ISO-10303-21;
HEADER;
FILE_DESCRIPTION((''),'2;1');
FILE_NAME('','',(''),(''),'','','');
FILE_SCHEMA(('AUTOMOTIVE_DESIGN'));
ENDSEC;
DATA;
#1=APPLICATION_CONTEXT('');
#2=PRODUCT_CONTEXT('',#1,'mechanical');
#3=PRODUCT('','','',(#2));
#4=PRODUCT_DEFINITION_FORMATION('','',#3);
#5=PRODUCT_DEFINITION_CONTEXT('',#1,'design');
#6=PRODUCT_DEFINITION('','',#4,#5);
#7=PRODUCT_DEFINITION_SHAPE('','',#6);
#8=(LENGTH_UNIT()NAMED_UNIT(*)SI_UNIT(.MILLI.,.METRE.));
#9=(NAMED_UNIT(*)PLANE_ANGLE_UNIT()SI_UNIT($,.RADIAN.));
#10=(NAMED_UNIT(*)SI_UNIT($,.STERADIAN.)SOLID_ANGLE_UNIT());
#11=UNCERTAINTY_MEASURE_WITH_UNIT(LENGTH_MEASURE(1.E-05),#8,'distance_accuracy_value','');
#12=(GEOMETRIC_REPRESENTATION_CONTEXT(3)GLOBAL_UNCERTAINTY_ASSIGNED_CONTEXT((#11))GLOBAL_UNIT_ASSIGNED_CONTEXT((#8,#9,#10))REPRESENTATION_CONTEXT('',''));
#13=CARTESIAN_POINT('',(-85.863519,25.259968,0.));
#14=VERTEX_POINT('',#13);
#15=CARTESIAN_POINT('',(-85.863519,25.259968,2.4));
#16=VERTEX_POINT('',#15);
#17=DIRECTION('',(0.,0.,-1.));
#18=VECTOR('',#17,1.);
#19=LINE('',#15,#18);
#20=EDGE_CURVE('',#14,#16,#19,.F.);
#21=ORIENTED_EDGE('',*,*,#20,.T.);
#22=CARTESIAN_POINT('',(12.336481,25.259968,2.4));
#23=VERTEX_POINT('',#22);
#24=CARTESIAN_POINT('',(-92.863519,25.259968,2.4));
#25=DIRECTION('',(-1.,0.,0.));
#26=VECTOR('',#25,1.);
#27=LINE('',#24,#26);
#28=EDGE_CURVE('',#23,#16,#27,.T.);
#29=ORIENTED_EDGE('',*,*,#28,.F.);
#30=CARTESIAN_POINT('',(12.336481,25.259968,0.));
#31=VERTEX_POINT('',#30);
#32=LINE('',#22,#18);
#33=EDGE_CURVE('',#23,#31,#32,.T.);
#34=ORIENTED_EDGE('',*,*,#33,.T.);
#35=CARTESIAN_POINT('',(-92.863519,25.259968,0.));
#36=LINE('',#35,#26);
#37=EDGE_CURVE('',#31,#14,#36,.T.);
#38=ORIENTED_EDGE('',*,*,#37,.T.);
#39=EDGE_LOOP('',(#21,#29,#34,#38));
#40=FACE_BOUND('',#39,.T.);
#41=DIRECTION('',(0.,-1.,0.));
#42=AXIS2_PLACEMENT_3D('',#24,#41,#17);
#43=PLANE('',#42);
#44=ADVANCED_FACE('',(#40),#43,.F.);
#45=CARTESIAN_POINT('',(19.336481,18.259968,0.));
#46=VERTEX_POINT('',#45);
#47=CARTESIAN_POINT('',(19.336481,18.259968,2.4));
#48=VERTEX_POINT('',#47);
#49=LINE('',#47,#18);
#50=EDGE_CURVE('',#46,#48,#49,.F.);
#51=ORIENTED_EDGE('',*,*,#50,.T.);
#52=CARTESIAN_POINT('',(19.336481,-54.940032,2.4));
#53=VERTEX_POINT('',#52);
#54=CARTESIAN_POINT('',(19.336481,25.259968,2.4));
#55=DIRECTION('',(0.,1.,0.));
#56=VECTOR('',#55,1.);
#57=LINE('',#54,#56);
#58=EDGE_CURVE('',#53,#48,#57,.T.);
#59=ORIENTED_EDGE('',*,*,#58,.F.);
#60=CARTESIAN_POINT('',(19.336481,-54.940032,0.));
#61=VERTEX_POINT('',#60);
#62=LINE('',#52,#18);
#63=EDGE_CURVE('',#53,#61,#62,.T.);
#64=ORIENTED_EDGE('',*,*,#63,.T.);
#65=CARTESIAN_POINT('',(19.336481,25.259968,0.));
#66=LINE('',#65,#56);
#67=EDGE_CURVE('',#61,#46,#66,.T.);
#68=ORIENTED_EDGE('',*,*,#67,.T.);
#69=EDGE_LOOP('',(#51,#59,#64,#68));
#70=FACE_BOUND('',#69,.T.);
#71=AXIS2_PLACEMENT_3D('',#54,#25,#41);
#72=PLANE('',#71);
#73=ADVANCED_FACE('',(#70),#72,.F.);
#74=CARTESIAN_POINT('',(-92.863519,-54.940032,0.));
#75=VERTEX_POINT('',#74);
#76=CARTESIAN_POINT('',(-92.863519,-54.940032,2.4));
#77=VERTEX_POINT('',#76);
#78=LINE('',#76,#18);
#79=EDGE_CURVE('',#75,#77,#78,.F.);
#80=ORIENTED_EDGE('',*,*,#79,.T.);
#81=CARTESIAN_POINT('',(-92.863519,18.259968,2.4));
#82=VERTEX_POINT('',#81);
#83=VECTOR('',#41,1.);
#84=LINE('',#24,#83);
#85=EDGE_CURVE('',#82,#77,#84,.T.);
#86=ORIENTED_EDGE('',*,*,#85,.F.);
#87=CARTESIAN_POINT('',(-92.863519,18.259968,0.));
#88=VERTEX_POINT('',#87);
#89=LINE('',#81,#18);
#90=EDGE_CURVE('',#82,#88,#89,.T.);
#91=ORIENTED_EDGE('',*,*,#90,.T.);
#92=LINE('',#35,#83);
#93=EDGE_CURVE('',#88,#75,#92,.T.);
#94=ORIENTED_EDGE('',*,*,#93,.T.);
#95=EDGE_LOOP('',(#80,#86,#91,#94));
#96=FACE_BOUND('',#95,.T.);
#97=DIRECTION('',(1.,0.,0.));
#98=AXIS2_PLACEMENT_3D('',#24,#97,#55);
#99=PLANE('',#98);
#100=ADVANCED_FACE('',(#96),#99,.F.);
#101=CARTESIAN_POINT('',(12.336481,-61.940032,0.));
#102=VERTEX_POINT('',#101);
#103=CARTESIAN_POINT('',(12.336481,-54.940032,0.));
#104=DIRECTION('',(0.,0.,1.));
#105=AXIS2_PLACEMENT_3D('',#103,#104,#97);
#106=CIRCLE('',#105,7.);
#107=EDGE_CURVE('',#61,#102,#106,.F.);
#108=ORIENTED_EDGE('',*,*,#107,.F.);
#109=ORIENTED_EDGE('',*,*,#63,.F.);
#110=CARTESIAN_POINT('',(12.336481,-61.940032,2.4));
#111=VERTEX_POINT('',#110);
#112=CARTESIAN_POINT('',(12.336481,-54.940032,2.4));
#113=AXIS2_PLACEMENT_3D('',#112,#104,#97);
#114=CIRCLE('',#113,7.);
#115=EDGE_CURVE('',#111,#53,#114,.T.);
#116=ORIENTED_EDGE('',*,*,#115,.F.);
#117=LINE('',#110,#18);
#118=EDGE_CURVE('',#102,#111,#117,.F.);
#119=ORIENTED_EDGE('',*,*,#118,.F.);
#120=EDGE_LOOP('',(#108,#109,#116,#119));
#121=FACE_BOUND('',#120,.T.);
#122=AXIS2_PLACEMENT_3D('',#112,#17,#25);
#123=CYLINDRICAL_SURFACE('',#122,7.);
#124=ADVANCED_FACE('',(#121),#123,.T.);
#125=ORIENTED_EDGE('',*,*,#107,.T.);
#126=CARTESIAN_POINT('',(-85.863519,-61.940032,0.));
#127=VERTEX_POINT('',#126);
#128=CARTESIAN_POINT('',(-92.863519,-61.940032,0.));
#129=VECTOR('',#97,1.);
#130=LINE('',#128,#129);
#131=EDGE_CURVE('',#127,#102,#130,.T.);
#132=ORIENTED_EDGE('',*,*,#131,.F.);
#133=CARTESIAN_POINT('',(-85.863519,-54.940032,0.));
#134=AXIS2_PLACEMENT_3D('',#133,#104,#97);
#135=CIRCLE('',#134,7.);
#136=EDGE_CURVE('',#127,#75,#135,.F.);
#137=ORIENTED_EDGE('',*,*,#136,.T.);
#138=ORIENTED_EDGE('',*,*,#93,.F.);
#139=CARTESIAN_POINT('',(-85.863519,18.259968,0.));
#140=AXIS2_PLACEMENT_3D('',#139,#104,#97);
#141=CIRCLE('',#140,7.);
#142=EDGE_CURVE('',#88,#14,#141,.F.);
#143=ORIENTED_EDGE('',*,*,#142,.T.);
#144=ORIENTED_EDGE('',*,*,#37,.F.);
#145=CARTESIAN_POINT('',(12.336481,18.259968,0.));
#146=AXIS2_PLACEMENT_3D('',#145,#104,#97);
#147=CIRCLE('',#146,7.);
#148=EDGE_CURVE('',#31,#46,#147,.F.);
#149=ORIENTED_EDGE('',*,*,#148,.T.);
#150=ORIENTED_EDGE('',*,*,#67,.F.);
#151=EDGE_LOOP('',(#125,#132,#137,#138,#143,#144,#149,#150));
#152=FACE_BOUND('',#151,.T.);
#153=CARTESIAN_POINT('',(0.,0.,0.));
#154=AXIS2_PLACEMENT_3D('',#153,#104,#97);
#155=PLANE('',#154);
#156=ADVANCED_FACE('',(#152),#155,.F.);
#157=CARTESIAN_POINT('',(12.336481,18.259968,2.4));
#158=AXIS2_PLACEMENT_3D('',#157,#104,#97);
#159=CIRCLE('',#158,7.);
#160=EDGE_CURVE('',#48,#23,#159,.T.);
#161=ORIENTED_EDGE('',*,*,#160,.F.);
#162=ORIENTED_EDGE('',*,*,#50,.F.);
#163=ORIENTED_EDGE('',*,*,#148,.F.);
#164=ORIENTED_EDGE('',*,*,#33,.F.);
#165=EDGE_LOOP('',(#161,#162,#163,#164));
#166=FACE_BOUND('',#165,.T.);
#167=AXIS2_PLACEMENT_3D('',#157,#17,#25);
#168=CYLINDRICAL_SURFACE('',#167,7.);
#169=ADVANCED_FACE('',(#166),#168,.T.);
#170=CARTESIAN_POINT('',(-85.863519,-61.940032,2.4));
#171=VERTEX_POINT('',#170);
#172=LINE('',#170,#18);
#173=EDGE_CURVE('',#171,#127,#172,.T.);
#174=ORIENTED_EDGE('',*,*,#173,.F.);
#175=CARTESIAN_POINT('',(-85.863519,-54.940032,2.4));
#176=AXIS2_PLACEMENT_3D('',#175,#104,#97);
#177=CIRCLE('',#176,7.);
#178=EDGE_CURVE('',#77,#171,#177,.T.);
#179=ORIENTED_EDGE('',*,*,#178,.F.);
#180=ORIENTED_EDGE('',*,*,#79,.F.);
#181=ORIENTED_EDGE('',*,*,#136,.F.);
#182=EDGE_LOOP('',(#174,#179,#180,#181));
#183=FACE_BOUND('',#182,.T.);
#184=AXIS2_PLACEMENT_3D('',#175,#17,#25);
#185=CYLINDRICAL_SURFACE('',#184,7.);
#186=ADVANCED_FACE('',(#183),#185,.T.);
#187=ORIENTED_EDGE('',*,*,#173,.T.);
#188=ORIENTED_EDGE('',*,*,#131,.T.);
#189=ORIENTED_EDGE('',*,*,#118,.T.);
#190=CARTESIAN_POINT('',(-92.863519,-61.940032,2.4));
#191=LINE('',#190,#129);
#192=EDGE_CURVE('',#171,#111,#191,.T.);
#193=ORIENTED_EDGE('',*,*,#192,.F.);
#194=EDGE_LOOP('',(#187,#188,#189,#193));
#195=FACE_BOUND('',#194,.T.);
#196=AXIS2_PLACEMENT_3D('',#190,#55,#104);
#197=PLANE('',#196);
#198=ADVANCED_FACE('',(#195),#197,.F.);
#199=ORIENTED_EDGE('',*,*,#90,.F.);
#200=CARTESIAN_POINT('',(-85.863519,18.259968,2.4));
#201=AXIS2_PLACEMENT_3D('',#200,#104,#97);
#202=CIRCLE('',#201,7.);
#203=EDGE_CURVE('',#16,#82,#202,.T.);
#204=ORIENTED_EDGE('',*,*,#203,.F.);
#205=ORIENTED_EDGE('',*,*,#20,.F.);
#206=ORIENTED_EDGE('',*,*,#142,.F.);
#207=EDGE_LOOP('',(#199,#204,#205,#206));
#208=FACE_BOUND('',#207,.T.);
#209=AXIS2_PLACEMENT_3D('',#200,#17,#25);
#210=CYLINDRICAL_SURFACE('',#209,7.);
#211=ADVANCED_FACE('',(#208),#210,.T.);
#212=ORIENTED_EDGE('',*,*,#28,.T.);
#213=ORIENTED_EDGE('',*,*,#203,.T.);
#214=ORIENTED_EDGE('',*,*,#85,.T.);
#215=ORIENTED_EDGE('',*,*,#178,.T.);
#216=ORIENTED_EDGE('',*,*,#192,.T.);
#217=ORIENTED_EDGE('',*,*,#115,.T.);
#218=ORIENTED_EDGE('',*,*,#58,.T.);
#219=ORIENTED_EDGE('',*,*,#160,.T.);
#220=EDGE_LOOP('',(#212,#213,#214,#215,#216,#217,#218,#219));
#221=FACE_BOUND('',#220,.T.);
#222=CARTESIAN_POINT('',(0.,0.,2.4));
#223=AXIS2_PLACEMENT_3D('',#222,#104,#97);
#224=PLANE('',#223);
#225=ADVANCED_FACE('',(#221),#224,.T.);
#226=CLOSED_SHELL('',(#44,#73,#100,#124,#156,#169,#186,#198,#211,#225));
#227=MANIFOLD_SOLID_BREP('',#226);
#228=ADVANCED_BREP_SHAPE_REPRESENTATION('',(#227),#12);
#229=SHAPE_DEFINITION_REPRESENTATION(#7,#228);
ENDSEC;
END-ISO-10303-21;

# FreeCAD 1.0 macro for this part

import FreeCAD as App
import Part
import Sketcher


def edges_at(feature, points):
    """Names of the edges that pass closest to the given points."""
    edges = feature.Shape.Edges
    near = lambda p: min(range(len(edges)), key=lambda i: edges[i].distToShape(Part.Vertex(*p))[0])
    return sorted({f"Edge{near(p) + 1}" for p in points})


def add_polygon(sketch, points):
    """Adds a closed chain of lines whose ends are joined by coincident constraints."""
    first, n = sketch.GeometryCount, len(points)
    for a, b in zip(points, points[1:] + points[:1]):
        sketch.addGeometry(Part.LineSegment(App.Vector(*a, 0), App.Vector(*b, 0)), False)
    for i in range(n):
        sketch.addConstraint(Sketcher.Constraint("Coincident", first + i, 2, first + (i + 1) % n, 1))

doc = App.newDocument("Part")
body = doc.addObject("PartDesign::Body", "Body")

# Sketch on XY plane
sketch1 = body.newObject("Sketcher::SketchObject", "Sketch")
sketch1.AttachmentSupport = (doc.getObject("XY_Plane"), [""])
sketch1.MapMode = "FlatFace"
add_polygon(sketch1, [(-93, 25), (-93, -62), (19, -62), (19, 25)])  # lines 0-3
sketch1.addConstraint(Sketcher.Constraint("Vertical", 0))
sketch1.addConstraint(Sketcher.Constraint("Horizontal", 1))
sketch1.addConstraint(Sketcher.Constraint("Vertical", 2))
sketch1.addConstraint(Sketcher.Constraint("Horizontal", 3))
sketch1.addConstraint(Sketcher.Constraint("DistanceX", 1, 1, 1, 2, 112.2))
sketch1.addConstraint(Sketcher.Constraint("DistanceY", 0, 2, 0, 1, 87.2))
sketch1.addConstraint(Sketcher.Constraint("DistanceX", 0, 2, -1, 1, 92.863519))
sketch1.addConstraint(Sketcher.Constraint("DistanceY", 0, 2, -1, 1, 61.940032))
pad1 = body.newObject("PartDesign::Pad", "Pad")
pad1.Profile = sketch1
pad1.Length = 2.4
doc.recompute()

fillet = body.newObject("PartDesign::Fillet", "Fillet")
fillet.Base = (pad1, edges_at(pad1, [
    (-92.864, 25.26, 1.2),
    (19.336, 25.26, 1.2),
    (19.336, -61.94, 1.2),
    (-92.864, -61.94, 1.2),
]))
fillet.Radius = 7

doc.recompute()
